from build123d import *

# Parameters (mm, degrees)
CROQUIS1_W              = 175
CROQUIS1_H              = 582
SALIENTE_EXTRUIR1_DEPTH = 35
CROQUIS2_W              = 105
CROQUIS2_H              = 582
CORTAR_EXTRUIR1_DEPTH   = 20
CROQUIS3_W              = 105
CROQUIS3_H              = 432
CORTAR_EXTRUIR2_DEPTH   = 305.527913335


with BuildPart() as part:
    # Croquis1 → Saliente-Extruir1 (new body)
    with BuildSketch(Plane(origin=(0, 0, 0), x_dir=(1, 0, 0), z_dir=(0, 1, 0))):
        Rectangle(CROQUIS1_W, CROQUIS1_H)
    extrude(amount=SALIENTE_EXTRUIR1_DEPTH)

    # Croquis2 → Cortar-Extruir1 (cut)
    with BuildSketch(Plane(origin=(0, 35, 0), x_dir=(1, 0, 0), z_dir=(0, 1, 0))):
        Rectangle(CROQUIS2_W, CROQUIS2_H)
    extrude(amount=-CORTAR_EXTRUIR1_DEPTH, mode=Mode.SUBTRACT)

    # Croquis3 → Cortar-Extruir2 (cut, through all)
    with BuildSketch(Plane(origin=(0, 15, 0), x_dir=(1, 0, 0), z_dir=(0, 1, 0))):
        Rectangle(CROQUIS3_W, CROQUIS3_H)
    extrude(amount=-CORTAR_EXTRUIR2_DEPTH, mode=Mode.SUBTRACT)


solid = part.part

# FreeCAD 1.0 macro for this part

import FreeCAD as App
import Part
import Sketcher

V = App.Vector
Q = App.Units.Quantity

doc = App.newDocument("Part")
body = doc.addObject("PartDesign::Body", "Body")

sketch1 = body.newObject("Sketcher::SketchObject", "Sketch")
sketch1.AttachmentSupport = (doc.getObject("XZ_Plane"), [""])
sketch1.MapMode = "FlatFace"
sketch1.addGeometry([
    Part.LineSegment(V(-88, -291, 0), V(-88, 291, 0)),
    Part.LineSegment(V(-88, 291, 0), V(88, 291, 0)),
    Part.LineSegment(V(88, 291, 0), V(88, -291, 0)),
    Part.LineSegment(V(88, -291, 0), V(-88, -291, 0)),
], False)
sketch1.addConstraint([
    Sketcher.Constraint("Coincident", 0, 2, 1, 1),
    Sketcher.Constraint("Coincident", 1, 2, 2, 1),
    Sketcher.Constraint("Coincident", 2, 2, 3, 1),
    Sketcher.Constraint("Coincident", 3, 2, 0, 1),
    Sketcher.Constraint("Vertical", 0),
    Sketcher.Constraint("Horizontal", 1),
    Sketcher.Constraint("Vertical", 2),
    Sketcher.Constraint("Horizontal", 3),
    Sketcher.Constraint("Symmetric", 0, 2, 2, 2, -1, 1),
    Sketcher.Constraint("DistanceX", 1, 1, 1, 2, Q("175 mm")),
    Sketcher.Constraint("DistanceY", 0, 1, 0, 2, Q("582 mm")),
])
pad1 = body.newObject("PartDesign::Pad", "Pad")
pad1.Profile = sketch1
pad1.Length = 35
pad1.Reversed = True

sketch2 = body.newObject("Sketcher::SketchObject", "Sketch001")
sketch2.AttachmentSupport = (doc.getObject("XZ_Plane"), [""])
sketch2.MapMode = "FlatFace"
sketch2.AttachmentOffset = App.Placement(V(0, 0, -35), App.Rotation())
sketch2.addGeometry([
    Part.LineSegment(V(-52, -291, 0), V(-52, 291, 0)),
    Part.LineSegment(V(-52, 291, 0), V(52, 291, 0)),
    Part.LineSegment(V(52, 291, 0), V(52, -291, 0)),
    Part.LineSegment(V(52, -291, 0), V(-52, -291, 0)),
], False)
sketch2.addConstraint([
    Sketcher.Constraint("Coincident", 0, 2, 1, 1),
    Sketcher.Constraint("Coincident", 1, 2, 2, 1),
    Sketcher.Constraint("Coincident", 2, 2, 3, 1),
    Sketcher.Constraint("Coincident", 3, 2, 0, 1),
    Sketcher.Constraint("Vertical", 0),
    Sketcher.Constraint("Horizontal", 1),
    Sketcher.Constraint("Vertical", 2),
    Sketcher.Constraint("Horizontal", 3),
    Sketcher.Constraint("Symmetric", 0, 2, 2, 2, -1, 1),
    Sketcher.Constraint("DistanceX", 1, 1, 1, 2, Q("105 mm")),
    Sketcher.Constraint("DistanceY", 0, 1, 0, 2, Q("582 mm")),
])
pocket1 = body.newObject("PartDesign::Pocket", "Pocket")
pocket1.Profile = sketch2
pocket1.Length = 20
pocket1.Reversed = True

sketch3 = body.newObject("Sketcher::SketchObject", "Sketch002")
sketch3.AttachmentSupport = (doc.getObject("XZ_Plane"), [""])
sketch3.MapMode = "FlatFace"
sketch3.AttachmentOffset = App.Placement(V(0, 0, -15), App.Rotation())
sketch3.addGeometry([
    Part.LineSegment(V(-52, -216, 0), V(-52, 216, 0)),
    Part.LineSegment(V(-52, 216, 0), V(52, 216, 0)),
    Part.LineSegment(V(52, 216, 0), V(52, -216, 0)),
    Part.LineSegment(V(52, -216, 0), V(-52, -216, 0)),
], False)
sketch3.addConstraint([
    Sketcher.Constraint("Coincident", 0, 2, 1, 1),
    Sketcher.Constraint("Coincident", 1, 2, 2, 1),
    Sketcher.Constraint("Coincident", 2, 2, 3, 1),
    Sketcher.Constraint("Coincident", 3, 2, 0, 1),
    Sketcher.Constraint("Vertical", 0),
    Sketcher.Constraint("Horizontal", 1),
    Sketcher.Constraint("Vertical", 2),
    Sketcher.Constraint("Horizontal", 3),
    Sketcher.Constraint("Symmetric", 0, 2, 2, 2, -1, 1),
    Sketcher.Constraint("DistanceX", 1, 1, 1, 2, Q("105 mm")),
    Sketcher.Constraint("DistanceY", 0, 1, 0, 2, Q("432 mm")),
])
pocket2 = body.newObject("PartDesign::Pocket", "Pocket001")
pocket2.Profile = sketch3
pocket2.Type = "ThroughAll"
pocket2.Reversed = True

doc.recompute()
